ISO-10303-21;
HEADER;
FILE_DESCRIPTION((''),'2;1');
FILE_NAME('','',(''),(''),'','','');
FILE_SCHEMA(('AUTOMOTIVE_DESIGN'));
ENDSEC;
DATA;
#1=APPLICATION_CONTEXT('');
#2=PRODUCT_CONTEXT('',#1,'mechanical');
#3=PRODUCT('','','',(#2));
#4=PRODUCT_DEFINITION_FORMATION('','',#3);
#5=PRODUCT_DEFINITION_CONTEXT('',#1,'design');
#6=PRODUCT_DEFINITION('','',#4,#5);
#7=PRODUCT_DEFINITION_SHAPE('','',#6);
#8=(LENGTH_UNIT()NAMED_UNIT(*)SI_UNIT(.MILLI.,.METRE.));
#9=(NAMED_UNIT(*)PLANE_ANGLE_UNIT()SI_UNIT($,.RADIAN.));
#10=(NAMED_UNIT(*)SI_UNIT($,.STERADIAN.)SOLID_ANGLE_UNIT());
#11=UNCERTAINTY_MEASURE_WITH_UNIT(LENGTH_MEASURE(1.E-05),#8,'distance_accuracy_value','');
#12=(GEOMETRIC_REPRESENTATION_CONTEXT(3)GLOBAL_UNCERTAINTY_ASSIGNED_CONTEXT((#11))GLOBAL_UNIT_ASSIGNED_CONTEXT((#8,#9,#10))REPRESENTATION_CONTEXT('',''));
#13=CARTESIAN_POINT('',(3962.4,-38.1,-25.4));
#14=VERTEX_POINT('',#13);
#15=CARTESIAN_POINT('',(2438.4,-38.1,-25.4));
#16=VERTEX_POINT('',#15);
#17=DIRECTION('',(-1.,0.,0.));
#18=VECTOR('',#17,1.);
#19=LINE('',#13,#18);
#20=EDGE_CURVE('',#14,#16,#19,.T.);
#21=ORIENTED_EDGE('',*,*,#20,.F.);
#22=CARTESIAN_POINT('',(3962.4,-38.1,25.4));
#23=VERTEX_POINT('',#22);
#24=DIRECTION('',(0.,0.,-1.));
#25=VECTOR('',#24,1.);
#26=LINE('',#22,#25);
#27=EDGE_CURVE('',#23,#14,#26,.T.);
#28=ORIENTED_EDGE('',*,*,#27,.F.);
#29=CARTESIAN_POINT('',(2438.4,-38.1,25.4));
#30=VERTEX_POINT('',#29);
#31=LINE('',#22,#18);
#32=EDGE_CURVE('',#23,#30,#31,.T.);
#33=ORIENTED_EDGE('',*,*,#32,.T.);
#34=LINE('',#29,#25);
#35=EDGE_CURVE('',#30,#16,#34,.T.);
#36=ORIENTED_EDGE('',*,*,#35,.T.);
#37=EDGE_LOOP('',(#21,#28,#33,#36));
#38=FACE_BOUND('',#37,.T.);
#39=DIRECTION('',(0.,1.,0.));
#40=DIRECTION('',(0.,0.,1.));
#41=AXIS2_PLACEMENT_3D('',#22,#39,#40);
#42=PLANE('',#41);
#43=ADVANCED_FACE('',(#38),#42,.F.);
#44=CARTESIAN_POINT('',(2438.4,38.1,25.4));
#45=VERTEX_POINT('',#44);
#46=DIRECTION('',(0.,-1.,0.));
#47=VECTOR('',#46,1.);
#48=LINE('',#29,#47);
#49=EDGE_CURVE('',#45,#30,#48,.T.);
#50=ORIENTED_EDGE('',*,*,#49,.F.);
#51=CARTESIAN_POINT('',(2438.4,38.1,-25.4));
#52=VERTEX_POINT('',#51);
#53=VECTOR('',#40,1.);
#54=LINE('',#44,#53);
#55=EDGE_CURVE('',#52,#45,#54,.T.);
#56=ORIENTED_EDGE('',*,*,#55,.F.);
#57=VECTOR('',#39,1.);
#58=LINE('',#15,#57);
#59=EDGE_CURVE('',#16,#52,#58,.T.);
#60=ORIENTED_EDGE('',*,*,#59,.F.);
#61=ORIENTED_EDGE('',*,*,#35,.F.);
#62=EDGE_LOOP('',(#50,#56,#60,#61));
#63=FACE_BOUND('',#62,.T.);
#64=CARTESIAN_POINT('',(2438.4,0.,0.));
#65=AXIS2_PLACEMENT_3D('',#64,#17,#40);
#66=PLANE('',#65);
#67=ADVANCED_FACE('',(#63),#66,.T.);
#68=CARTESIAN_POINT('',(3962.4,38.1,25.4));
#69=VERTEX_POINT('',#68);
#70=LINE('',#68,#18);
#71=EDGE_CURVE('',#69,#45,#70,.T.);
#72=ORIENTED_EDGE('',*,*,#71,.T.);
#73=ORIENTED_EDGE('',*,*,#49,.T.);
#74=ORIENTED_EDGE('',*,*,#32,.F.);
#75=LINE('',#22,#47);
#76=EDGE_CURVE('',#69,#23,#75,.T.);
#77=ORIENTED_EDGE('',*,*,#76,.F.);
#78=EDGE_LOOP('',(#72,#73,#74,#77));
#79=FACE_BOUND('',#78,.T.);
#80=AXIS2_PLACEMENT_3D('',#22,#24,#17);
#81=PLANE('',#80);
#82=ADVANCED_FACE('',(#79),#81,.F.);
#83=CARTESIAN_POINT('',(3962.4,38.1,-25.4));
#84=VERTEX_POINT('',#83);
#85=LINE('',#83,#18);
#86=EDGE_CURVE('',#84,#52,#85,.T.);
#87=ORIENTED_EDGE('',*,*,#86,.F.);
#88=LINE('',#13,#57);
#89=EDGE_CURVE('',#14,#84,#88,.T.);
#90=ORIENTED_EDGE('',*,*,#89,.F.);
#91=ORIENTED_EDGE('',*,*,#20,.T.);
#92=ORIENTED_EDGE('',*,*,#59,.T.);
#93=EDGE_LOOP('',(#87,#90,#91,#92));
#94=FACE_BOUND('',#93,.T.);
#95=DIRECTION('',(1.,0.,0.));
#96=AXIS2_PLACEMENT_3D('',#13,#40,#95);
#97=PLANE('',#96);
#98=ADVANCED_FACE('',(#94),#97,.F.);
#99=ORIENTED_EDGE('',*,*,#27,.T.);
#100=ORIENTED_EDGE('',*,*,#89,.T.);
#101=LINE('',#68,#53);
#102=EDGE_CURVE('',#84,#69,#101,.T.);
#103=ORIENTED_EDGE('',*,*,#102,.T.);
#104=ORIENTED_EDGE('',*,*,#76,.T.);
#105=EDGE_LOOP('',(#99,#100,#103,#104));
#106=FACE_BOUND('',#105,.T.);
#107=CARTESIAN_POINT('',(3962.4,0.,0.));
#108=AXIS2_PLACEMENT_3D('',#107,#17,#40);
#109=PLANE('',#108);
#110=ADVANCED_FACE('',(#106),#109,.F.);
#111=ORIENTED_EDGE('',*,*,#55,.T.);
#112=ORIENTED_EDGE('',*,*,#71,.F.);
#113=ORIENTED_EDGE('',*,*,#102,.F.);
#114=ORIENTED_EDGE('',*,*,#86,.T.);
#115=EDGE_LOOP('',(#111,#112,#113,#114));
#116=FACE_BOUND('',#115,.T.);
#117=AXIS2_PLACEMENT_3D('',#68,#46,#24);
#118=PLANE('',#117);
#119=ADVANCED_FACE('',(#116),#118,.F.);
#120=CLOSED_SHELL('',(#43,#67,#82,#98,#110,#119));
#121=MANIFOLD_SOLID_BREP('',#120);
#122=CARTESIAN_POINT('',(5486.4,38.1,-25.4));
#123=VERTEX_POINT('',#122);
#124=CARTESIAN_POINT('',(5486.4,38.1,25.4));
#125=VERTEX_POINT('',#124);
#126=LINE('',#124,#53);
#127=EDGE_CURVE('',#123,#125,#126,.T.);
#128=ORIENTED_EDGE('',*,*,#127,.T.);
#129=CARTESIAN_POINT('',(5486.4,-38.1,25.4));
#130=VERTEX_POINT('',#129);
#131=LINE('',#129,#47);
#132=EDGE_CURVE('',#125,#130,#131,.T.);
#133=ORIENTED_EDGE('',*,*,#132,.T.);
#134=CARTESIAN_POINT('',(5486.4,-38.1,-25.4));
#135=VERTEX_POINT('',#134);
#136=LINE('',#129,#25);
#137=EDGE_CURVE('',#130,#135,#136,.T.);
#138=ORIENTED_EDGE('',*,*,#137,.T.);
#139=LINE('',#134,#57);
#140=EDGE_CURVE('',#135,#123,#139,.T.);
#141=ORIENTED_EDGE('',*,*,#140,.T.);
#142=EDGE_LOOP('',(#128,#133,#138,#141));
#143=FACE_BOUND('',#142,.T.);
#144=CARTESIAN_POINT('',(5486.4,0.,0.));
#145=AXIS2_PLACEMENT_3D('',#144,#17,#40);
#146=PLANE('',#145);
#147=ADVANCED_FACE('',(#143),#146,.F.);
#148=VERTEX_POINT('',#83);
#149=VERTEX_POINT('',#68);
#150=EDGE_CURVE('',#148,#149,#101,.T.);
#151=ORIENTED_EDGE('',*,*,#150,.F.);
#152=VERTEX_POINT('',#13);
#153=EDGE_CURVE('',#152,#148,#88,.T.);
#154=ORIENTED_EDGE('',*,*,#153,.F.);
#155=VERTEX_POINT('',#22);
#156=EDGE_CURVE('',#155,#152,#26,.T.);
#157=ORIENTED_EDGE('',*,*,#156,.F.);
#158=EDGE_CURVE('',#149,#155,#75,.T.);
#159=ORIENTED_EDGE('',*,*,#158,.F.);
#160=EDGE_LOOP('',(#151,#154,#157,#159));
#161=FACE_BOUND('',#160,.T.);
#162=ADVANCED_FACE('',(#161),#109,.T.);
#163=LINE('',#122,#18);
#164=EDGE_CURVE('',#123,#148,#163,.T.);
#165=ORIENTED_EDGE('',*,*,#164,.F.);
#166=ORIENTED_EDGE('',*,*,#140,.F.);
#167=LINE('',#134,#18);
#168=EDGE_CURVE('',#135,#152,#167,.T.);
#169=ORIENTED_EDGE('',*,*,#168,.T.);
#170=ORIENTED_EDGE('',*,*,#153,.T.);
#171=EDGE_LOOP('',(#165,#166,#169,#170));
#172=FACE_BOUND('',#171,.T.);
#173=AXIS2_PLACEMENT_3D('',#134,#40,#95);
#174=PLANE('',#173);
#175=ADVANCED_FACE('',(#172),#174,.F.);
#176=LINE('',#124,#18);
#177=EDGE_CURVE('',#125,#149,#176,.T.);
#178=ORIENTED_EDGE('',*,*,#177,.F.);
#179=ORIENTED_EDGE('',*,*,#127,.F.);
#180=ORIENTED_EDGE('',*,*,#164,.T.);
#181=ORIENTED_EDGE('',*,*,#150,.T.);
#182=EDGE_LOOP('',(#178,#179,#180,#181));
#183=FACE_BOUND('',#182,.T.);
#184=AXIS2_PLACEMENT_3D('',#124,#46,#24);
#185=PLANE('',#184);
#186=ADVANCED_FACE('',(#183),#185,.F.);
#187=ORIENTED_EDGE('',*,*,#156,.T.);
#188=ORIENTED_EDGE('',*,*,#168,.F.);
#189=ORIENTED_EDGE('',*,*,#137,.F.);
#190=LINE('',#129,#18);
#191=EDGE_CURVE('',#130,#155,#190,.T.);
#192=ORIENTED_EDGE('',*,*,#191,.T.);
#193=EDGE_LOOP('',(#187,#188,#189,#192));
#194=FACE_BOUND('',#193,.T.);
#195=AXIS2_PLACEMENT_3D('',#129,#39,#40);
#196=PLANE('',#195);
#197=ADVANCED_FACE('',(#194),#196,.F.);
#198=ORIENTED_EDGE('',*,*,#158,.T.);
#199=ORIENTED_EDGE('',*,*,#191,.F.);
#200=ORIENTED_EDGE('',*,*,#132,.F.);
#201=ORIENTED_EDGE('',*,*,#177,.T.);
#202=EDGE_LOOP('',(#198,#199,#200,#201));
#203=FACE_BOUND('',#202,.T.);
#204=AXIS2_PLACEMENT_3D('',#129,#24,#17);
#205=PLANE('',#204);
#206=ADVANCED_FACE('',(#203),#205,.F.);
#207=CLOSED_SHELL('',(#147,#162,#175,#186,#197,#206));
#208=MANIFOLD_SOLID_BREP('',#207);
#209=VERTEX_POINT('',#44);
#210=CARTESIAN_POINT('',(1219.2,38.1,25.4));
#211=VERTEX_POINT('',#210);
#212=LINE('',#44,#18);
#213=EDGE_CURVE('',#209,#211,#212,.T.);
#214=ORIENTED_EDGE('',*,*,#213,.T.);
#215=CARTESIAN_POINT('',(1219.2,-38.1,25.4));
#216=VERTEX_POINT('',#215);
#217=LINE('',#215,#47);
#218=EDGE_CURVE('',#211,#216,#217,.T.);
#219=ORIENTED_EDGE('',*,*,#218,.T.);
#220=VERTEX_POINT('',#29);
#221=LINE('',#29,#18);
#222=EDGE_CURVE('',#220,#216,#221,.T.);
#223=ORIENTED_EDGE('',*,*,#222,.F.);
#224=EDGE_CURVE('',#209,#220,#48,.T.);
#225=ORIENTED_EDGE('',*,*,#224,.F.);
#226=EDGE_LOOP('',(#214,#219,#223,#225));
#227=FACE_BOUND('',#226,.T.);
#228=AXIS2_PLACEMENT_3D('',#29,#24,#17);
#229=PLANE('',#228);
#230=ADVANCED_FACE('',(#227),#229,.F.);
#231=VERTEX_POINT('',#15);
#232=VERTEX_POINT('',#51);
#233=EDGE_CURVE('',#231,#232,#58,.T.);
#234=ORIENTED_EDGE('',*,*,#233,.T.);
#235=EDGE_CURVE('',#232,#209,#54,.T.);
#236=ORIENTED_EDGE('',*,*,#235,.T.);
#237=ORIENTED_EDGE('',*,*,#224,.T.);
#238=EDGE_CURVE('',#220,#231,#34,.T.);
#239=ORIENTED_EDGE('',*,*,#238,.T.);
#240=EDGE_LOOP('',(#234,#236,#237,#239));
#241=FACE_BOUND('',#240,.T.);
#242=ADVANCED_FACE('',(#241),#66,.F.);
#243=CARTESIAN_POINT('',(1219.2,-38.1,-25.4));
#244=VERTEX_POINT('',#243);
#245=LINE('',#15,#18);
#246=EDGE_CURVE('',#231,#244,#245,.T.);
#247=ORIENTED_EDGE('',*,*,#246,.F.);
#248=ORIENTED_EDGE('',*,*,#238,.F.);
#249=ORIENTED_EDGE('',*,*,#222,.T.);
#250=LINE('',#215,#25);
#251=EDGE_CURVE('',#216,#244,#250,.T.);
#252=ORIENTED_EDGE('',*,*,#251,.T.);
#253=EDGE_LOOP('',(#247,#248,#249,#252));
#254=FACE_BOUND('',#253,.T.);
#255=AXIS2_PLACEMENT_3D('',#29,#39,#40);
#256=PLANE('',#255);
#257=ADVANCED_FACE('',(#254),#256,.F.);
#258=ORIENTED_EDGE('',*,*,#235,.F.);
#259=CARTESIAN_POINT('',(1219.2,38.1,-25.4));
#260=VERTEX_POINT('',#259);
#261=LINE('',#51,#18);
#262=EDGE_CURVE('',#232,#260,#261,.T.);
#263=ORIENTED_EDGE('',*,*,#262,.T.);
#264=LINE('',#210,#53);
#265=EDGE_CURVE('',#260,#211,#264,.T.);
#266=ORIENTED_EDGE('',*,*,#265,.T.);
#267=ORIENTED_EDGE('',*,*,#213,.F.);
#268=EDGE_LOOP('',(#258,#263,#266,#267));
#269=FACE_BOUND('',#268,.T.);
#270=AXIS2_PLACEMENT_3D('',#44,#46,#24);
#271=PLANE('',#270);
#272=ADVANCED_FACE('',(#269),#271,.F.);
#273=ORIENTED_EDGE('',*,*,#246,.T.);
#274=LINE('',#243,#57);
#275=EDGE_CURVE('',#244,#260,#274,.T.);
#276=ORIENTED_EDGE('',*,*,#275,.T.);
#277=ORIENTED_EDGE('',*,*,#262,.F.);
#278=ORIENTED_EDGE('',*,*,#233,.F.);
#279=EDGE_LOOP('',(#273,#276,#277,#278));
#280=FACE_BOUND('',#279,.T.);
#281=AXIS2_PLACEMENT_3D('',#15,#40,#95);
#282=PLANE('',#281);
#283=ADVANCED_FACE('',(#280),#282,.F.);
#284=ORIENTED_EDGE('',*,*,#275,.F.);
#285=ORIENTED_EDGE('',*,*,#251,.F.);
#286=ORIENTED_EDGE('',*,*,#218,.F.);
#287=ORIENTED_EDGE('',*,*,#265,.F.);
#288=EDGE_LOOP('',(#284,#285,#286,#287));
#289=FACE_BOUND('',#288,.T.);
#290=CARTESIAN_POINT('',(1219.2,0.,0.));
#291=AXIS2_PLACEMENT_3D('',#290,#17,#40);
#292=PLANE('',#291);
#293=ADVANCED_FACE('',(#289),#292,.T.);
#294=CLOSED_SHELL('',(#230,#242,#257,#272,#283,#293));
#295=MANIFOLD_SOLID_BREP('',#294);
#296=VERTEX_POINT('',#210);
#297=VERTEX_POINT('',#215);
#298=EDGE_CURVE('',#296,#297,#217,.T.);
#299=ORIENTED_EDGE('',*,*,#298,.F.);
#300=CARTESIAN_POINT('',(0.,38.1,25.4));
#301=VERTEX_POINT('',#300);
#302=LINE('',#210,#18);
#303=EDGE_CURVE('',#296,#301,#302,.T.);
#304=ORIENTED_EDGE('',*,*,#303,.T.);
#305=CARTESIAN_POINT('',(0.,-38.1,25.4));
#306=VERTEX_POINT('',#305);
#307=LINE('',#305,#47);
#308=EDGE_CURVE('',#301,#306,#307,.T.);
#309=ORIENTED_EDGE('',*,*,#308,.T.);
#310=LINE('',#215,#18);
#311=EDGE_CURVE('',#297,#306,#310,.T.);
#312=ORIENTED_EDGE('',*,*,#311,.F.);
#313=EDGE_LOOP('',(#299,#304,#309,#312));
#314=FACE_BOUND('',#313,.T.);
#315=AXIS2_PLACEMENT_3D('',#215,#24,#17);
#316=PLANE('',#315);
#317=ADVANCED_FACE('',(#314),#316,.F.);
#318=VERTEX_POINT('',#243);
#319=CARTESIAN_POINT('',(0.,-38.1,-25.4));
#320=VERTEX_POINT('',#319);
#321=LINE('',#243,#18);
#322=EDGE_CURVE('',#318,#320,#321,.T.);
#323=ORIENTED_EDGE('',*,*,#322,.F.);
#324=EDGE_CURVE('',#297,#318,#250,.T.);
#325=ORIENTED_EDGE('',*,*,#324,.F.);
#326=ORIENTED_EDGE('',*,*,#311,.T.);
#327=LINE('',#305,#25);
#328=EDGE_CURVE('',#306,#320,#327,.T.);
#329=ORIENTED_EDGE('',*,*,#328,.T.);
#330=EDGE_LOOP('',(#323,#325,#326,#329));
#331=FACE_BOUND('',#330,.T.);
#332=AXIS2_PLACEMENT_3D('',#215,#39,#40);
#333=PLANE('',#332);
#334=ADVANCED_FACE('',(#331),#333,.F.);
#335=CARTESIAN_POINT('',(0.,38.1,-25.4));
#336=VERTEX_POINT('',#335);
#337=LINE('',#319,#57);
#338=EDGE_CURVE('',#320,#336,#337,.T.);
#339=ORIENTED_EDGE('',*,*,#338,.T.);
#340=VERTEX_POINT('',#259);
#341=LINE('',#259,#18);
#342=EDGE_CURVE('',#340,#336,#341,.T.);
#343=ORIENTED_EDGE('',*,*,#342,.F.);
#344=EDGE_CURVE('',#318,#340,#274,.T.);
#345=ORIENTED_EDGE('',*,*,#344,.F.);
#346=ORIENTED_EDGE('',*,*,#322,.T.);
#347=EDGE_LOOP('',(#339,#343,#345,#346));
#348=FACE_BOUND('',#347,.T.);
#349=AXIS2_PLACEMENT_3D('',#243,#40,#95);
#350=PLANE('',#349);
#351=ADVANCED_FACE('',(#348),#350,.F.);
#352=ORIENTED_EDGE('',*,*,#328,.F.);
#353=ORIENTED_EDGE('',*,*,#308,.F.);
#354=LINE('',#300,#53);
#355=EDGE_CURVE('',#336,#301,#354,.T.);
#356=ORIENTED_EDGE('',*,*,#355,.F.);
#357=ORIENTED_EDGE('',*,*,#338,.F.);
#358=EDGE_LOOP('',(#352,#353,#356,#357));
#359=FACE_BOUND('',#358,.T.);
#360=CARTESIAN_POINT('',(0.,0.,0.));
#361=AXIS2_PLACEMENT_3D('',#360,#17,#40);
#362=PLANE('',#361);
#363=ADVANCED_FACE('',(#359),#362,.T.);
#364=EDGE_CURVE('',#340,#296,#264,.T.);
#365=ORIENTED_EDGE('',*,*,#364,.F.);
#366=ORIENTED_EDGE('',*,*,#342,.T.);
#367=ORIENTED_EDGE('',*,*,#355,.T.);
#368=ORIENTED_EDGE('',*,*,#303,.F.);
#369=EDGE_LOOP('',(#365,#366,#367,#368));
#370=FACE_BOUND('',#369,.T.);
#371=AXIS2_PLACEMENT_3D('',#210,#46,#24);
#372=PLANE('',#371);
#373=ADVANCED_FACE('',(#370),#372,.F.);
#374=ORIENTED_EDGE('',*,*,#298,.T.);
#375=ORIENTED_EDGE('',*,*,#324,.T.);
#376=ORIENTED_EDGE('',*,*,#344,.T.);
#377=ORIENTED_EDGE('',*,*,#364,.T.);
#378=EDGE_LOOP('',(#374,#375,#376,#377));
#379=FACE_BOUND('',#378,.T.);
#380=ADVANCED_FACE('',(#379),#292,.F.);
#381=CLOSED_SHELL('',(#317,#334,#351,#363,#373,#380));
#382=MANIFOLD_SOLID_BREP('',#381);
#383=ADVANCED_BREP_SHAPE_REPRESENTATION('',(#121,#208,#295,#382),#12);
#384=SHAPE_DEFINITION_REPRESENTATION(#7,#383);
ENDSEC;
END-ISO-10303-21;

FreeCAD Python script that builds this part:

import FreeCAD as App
import Part
import Sketcher
from FreeCAD import Vector
Q = App.Units.Quantity

doc = App.newDocument("Part")
params = doc.addObject("Spreadsheet::Sheet", "Params")
for row, (alias, value) in enumerate([
    ("sketch1_width", "3 in"),
    ("sketch1_height", "2 in"),
    ("pad1_length", "48 in"),
    ("sketch2_width", "3 in"),
    ("sketch2_height", "2 in"),
    ("pad2_length", "48 in"),
    ("sketch3_width", "3 in"),
    ("sketch3_height", "2 in"),
    ("pad3_length", "60 in"),
    ("sketch4_width", "3 in"),
    ("sketch4_height", "2 in"),
    ("pad4_length", "60 in"),
], start=1):
    params.set(f"A{row}", alias)
    params.set(f"B{row}", "=" + value)
    params.setAlias(f"B{row}", alias)

body = doc.addObject("PartDesign::Body", "Body")

# Sketch on YZ plane
sketch1 = body.newObject("Sketcher::SketchObject", "Sketch")
sketch1.AttachmentSupport = (doc.getObject("YZ_Plane"), [""])
sketch1.MapMode = "FlatFace"
sketch1.addGeometry([
    Part.LineSegment(Vector(38, 25, 0), Vector(-38, 25, 0)),
    Part.LineSegment(Vector(-38, 25, 0), Vector(-38, -25, 0)),
    Part.LineSegment(Vector(-38, -25, 0), Vector(38, -25, 0)),
    Part.LineSegment(Vector(38, -25, 0), Vector(38, 25, 0)),
], False)
sketch1.addConstraint([
    Sketcher.Constraint("Coincident", 0, 2, 1, 1),
    Sketcher.Constraint("Coincident", 1, 2, 2, 1),
    Sketcher.Constraint("Coincident", 2, 2, 3, 1),
    Sketcher.Constraint("Coincident", 3, 2, 0, 1),
    Sketcher.Constraint("Horizontal", 0),
    Sketcher.Constraint("Vertical", 1),
    Sketcher.Constraint("Horizontal", 2),
    Sketcher.Constraint("Vertical", 3),
    Sketcher.Constraint("Symmetric", 0, 2, 2, 2, -1, 1),
    Sketcher.Constraint("DistanceX", 0, 2, 0, 1, Q("3 in")),
    Sketcher.Constraint("DistanceY", 1, 2, 1, 1, Q("2 in")),
])
sketch1.setExpression("Constraints[9]", "Params.sketch1_width")
sketch1.setExpression("Constraints[10]", "Params.sketch1_height")
pad1 = body.newObject("PartDesign::Pad", "Pad")
pad1.Profile = sketch1
pad1.setExpression("Length", "Params.pad1_length")
body2 = doc.addObject("PartDesign::Body", "Body001")

# Sketch on YZ plane
sketch2 = body2.newObject("Sketcher::SketchObject", "Sketch001")
sketch2.AttachmentSupport = (doc.getObject("YZ_Plane001"), [""])
sketch2.MapMode = "FlatFace"
sketch2.AttachmentOffset = App.Placement(Vector(0, 0, 48 * 25.4), App.Rotation())
sketch2.addGeometry([
    Part.LineSegment(Vector(38, 25, 0), Vector(-38, 25, 0)),
    Part.LineSegment(Vector(-38, 25, 0), Vector(-38, -25, 0)),
    Part.LineSegment(Vector(-38, -25, 0), Vector(38, -25, 0)),
    Part.LineSegment(Vector(38, -25, 0), Vector(38, 25, 0)),
], False)
sketch2.addConstraint([
    Sketcher.Constraint("Coincident", 0, 2, 1, 1),
    Sketcher.Constraint("Coincident", 1, 2, 2, 1),
    Sketcher.Constraint("Coincident", 2, 2, 3, 1),
    Sketcher.Constraint("Coincident", 3, 2, 0, 1),
    Sketcher.Constraint("Horizontal", 0),
    Sketcher.Constraint("Vertical", 1),
    Sketcher.Constraint("Horizontal", 2),
    Sketcher.Constraint("Vertical", 3),
    Sketcher.Constraint("Symmetric", 0, 2, 2, 2, -1, 1),
    Sketcher.Constraint("DistanceX", 0, 2, 0, 1, Q("3 in")),
    Sketcher.Constraint("DistanceY", 1, 2, 1, 1, Q("2 in")),
])
sketch2.setExpression("Constraints[9]", "Params.sketch2_width")
sketch2.setExpression("Constraints[10]", "Params.sketch2_height")
pad2 = body2.newObject("PartDesign::Pad", "Pad001")
pad2.Profile = sketch2
pad2.setExpression("Length", "Params.pad2_length")
body3 = doc.addObject("PartDesign::Body", "Body002")

# Sketch on YZ plane
sketch3 = body3.newObject("Sketcher::SketchObject", "Sketch002")
sketch3.AttachmentSupport = (doc.getObject("YZ_Plane002"), [""])
sketch3.MapMode = "FlatFace"
sketch3.AttachmentOffset = App.Placement(Vector(0, 0, 96 * 25.4), App.Rotation())
sketch3.addGeometry([
    Part.LineSegment(Vector(38, 25, 0), Vector(-38, 25, 0)),
    Part.LineSegment(Vector(-38, 25, 0), Vector(-38, -25, 0)),
    Part.LineSegment(Vector(-38, -25, 0), Vector(38, -25, 0)),
    Part.LineSegment(Vector(38, -25, 0), Vector(38, 25, 0)),
], False)
sketch3.addConstraint([
    Sketcher.Constraint("Coincident", 0, 2, 1, 1),
    Sketcher.Constraint("Coincident", 1, 2, 2, 1),
    Sketcher.Constraint("Coincident", 2, 2, 3, 1),
    Sketcher.Constraint("Coincident", 3, 2, 0, 1),
    Sketcher.Constraint("Horizontal", 0),
    Sketcher.Constraint("Vertical", 1),
    Sketcher.Constraint("Horizontal", 2),
    Sketcher.Constraint("Vertical", 3),
    Sketcher.Constraint("Symmetric", 0, 2, 2, 2, -1, 1),
    Sketcher.Constraint("DistanceX", 0, 2, 0, 1, Q("3 in")),
    Sketcher.Constraint("DistanceY", 1, 2, 1, 1, Q("2 in")),
])
sketch3.setExpression("Constraints[9]", "Params.sketch3_width")
sketch3.setExpression("Constraints[10]", "Params.sketch3_height")
pad3 = body3.newObject("PartDesign::Pad", "Pad002")
pad3.Profile = sketch3
pad3.setExpression("Length", "Params.pad3_length")
body4 = doc.addObject("PartDesign::Body", "Body003")

# Sketch on YZ plane
sketch4 = body4.newObject("Sketcher::SketchObject", "Sketch003")
sketch4.AttachmentSupport = (doc.getObject("YZ_Plane003"), [""])
sketch4.MapMode = "FlatFace"
sketch4.AttachmentOffset = App.Placement(Vector(0, 0, 156 * 25.4), App.Rotation())
sketch4.addGeometry([
    Part.LineSegment(Vector(38, 25, 0), Vector(-38, 25, 0)),
    Part.LineSegment(Vector(-38, 25, 0), Vector(-38, -25, 0)),
    Part.LineSegment(Vector(-38, -25, 0), Vector(38, -25, 0)),
    Part.LineSegment(Vector(38, -25, 0), Vector(38, 25, 0)),
], False)
sketch4.addConstraint([
    Sketcher.Constraint("Coincident", 0, 2, 1, 1),
    Sketcher.Constraint("Coincident", 1, 2, 2, 1),
    Sketcher.Constraint("Coincident", 2, 2, 3, 1),
    Sketcher.Constraint("Coincident", 3, 2, 0, 1),
    Sketcher.Constraint("Horizontal", 0),
    Sketcher.Constraint("Vertical", 1),
    Sketcher.Constraint("Horizontal", 2),
    Sketcher.Constraint("Vertical", 3),
    Sketcher.Constraint("Symmetric", 0, 2, 2, 2, -1, 1),
    Sketcher.Constraint("DistanceX", 0, 2, 0, 1, Q("3 in")),
    Sketcher.Constraint("DistanceY", 1, 2, 1, 1, Q("2 in")),
])
sketch4.setExpression("Constraints[9]", "Params.sketch4_width")
sketch4.setExpression("Constraints[10]", "Params.sketch4_height")
pad4 = body4.newObject("PartDesign::Pad", "Pad003")
pad4.Profile = sketch4
pad4.setExpression("Length", "Params.pad4_length")

doc.recompute()
